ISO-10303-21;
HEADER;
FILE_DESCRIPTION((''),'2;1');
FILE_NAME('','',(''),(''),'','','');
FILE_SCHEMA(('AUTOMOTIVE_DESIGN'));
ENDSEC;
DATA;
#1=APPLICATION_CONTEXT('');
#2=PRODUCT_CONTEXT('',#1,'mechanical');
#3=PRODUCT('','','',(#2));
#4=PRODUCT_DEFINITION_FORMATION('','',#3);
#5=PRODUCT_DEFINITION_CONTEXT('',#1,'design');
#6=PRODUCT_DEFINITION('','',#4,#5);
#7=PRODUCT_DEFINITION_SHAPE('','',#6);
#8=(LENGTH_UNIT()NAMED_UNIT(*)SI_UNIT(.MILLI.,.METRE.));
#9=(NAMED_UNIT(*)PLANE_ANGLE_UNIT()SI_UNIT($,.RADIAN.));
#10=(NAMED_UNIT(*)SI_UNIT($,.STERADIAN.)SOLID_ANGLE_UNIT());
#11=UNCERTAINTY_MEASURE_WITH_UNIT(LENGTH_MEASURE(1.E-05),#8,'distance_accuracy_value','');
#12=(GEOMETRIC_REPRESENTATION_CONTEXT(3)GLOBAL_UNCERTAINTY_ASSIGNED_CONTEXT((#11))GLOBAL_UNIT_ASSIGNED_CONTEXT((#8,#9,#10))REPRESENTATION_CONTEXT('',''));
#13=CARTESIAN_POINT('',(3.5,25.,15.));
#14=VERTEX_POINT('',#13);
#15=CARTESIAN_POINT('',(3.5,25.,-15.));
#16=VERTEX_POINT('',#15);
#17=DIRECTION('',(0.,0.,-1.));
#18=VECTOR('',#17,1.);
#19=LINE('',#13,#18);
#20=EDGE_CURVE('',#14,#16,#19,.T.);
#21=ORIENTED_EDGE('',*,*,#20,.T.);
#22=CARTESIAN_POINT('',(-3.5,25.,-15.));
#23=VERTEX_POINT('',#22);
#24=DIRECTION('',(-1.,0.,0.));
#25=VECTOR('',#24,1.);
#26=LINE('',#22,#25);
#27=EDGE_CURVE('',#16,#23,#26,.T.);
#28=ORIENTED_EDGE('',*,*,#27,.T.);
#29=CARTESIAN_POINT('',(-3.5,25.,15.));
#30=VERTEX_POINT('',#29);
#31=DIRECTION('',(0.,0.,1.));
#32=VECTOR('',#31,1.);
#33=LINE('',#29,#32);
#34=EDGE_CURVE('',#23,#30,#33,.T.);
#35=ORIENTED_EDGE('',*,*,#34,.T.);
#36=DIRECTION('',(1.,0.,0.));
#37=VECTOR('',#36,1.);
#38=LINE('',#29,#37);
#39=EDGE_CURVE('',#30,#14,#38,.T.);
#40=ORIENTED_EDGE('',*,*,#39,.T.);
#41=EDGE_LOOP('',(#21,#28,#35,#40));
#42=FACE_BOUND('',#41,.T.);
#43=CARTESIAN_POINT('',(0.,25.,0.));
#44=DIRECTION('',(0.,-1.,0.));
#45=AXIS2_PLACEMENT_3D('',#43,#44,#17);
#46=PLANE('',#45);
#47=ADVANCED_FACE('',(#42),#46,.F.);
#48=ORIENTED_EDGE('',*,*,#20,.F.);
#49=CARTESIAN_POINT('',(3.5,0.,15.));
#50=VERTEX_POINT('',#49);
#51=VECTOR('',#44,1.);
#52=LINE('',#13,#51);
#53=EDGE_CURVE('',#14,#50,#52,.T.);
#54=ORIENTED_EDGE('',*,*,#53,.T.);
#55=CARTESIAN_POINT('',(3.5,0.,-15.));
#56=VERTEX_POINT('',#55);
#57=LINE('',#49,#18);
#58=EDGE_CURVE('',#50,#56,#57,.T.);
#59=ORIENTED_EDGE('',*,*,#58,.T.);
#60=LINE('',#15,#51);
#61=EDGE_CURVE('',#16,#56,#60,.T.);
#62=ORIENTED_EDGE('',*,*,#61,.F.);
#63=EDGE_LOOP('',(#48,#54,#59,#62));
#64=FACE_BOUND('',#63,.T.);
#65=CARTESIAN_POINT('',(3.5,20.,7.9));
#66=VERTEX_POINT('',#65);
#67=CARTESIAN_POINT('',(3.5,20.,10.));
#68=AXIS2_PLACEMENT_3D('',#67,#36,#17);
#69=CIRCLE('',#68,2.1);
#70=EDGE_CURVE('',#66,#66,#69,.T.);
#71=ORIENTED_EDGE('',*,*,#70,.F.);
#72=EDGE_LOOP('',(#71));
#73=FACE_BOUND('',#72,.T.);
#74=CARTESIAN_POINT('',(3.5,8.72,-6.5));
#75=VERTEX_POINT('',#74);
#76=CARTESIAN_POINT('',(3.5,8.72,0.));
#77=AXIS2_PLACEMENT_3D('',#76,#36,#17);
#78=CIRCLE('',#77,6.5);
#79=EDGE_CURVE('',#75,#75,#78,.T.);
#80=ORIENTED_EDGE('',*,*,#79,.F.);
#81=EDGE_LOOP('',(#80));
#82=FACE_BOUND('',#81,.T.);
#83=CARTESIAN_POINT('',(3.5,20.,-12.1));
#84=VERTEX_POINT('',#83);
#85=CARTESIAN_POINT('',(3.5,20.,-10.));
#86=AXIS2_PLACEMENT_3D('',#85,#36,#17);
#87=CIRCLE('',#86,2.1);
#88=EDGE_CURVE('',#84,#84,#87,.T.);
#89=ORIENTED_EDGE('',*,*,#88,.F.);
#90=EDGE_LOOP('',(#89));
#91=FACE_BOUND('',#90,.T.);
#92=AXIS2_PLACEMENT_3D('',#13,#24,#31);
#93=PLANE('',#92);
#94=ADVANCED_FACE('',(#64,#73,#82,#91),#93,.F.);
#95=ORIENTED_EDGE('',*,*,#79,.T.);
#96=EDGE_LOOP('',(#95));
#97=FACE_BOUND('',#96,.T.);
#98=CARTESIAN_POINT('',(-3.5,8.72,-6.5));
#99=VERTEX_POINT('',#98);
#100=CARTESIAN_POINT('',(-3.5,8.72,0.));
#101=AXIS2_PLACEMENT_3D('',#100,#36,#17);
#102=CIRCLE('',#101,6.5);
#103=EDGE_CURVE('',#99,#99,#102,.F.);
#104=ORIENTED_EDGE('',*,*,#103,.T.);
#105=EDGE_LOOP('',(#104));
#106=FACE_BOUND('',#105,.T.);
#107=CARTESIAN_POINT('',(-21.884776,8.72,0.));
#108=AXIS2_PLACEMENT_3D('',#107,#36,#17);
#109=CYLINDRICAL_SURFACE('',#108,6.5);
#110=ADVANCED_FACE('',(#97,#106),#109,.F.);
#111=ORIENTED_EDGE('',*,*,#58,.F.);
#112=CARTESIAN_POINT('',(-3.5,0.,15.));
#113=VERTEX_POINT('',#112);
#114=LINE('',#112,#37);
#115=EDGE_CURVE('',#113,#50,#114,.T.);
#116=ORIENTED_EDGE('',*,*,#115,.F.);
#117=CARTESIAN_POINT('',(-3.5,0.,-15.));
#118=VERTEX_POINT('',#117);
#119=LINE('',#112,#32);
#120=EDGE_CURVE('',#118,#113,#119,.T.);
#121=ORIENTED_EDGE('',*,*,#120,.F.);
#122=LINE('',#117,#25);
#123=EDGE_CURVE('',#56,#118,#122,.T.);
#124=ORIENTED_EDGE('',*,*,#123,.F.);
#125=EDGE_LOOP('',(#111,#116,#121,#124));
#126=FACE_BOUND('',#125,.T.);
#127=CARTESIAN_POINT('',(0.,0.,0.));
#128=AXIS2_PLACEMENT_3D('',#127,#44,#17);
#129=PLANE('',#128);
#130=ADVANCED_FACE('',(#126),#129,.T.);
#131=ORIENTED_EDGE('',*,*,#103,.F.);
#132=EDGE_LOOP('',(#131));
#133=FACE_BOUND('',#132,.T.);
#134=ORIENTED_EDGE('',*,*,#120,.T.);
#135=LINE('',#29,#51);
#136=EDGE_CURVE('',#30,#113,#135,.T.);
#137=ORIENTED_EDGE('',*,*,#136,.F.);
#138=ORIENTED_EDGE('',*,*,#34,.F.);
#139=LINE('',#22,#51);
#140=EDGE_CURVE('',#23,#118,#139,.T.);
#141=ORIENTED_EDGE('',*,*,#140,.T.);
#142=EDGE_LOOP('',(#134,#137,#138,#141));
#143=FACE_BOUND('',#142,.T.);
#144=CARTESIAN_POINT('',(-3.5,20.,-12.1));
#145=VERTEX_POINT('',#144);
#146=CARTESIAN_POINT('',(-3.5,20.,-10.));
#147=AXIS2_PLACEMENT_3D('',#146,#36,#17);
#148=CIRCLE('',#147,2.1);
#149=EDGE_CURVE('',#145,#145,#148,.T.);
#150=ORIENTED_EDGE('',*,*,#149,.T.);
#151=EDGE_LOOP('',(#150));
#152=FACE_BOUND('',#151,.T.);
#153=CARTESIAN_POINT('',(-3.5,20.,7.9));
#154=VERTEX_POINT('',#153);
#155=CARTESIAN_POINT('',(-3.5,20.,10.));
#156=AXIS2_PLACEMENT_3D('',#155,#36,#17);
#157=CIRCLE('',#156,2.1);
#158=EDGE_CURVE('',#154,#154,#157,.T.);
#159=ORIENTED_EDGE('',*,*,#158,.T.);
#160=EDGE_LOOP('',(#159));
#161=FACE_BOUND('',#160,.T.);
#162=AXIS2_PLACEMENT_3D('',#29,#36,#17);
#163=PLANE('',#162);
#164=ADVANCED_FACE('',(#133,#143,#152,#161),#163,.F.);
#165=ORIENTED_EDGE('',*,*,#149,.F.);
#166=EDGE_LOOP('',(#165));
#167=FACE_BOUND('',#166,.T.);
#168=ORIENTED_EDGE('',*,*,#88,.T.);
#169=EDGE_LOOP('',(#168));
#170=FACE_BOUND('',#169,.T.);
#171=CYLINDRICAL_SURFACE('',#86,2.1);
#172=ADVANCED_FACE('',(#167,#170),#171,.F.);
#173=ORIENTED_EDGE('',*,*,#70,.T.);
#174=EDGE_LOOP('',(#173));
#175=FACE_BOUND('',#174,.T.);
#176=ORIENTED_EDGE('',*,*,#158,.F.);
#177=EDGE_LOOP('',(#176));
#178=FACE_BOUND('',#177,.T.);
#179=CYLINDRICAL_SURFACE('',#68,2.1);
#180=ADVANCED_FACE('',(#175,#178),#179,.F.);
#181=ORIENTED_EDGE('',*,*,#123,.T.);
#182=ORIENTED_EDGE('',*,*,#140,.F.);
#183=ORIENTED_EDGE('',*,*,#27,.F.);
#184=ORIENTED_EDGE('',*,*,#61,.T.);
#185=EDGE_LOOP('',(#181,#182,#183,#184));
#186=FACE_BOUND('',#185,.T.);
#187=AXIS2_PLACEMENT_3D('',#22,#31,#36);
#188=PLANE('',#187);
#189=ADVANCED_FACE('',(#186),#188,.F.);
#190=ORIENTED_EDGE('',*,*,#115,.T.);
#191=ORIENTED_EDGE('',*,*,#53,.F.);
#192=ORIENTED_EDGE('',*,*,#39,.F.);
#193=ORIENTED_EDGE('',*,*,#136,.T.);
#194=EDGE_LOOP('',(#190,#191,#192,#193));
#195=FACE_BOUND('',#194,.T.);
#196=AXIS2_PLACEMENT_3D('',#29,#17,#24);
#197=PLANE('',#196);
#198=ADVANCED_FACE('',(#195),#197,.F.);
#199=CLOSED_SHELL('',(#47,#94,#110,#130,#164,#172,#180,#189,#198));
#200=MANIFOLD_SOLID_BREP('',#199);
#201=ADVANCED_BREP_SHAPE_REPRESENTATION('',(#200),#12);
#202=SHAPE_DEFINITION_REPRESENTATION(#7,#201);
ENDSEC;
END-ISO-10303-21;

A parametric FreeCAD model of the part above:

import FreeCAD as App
import Part
import Sketcher
Q = App.Units.Quantity


def add_polygon(sketch, points):
    """Adds a closed chain of lines whose ends are joined by coincident constraints."""
    first, n = sketch.GeometryCount, len(points)
    for a, b in zip(points, points[1:] + points[:1]):
        sketch.addGeometry(Part.LineSegment(App.Vector(*a, 0), App.Vector(*b, 0)), False)
    for i in range(n):
        sketch.addConstraint(Sketcher.Constraint("Coincident", first + i, 2, first + (i + 1) % n, 1))

doc = App.newDocument("Part")
body = doc.addObject("PartDesign::Body", "Body")

# Sketch on XZ plane
sketch1 = body.newObject("Sketcher::SketchObject", "Sketch")
sketch1.AttachmentSupport = (doc.getObject("XZ_Plane"), [""])
sketch1.MapMode = "FlatFace"
add_polygon(sketch1, [(-4, -15), (-4, 15), (4, 15), (4, -15)])  # lines 0-3
sketch1.addConstraint([
    Sketcher.Constraint("Vertical", 0),
    Sketcher.Constraint("Horizontal", 1),
    Sketcher.Constraint("Vertical", 2),
    Sketcher.Constraint("Horizontal", 3),
    Sketcher.Constraint("Symmetric", 0, 2, 2, 2, -1, 1),
    Sketcher.Constraint("DistanceX", 1, 1, 1, 2, Q("7 mm")),
    Sketcher.Constraint("DistanceY", 0, 1, 0, 2, Q("30 mm")),
])
pad1 = body.newObject("PartDesign::Pad", "Pad")
pad1.Profile = sketch1
pad1.Length = 25
pad1.Reversed = True

# Sketch on YZ plane
sketch2 = body.newObject("Sketcher::SketchObject", "Sketch001")
sketch2.AttachmentSupport = (doc.getObject("YZ_Plane"), [""])
sketch2.MapMode = "FlatFace"
sketch2.AttachmentOffset = App.Placement(App.Vector(0, 0, 3.5), App.Rotation())
sketch2.addGeometry(Part.Circle(App.Vector(9, 0, 0), App.Vector(0, 0, 1), 6), False)
sketch2.addConstraint([
    Sketcher.Constraint("PointOnObject", 0, 3, -1),
    Sketcher.Constraint("Diameter", 0, Q("13 mm")),
    Sketcher.Constraint("DistanceX", -1, 1, 0, 3, Q("8.72 mm")),
])
pocket1 = body.newObject("PartDesign::Pocket", "Pocket")
pocket1.Profile = sketch2
pocket1.Length = 7

# Sketch on YZ plane
sketch3 = body.newObject("Sketcher::SketchObject", "Sketch002")
sketch3.AttachmentSupport = (doc.getObject("YZ_Plane"), [""])
sketch3.MapMode = "FlatFace"
sketch3.AttachmentOffset = App.Placement(App.Vector(0, 0, 3.5), App.Rotation())
sketch3.addGeometry([
    Part.Circle(App.Vector(20, -10, 0), App.Vector(0, 0, 1), 2.1),
    Part.Circle(App.Vector(20, 10, 0), App.Vector(0, 0, 1), 2.1),
], False)
sketch3.addConstraint([
    Sketcher.Constraint("Equal", 0, 1),
    Sketcher.Constraint("Symmetric", 0, 3, 1, 3, -1),
    Sketcher.Constraint("Diameter", 0, Q("4.2 mm")),
    Sketcher.Constraint("DistanceX", -1, 1, 0, 3, Q("20 mm")),
    Sketcher.Constraint("DistanceY", 0, 3, -1, 1, Q("10 mm")),
])
doc.recompute()
hole = body.newObject("PartDesign::Hole", "Hole")
hole.Profile = sketch3
hole.ThreadType = "None"
hole.Diameter = 4.2
hole.DepthType = "ThroughAll"

doc.recompute()
